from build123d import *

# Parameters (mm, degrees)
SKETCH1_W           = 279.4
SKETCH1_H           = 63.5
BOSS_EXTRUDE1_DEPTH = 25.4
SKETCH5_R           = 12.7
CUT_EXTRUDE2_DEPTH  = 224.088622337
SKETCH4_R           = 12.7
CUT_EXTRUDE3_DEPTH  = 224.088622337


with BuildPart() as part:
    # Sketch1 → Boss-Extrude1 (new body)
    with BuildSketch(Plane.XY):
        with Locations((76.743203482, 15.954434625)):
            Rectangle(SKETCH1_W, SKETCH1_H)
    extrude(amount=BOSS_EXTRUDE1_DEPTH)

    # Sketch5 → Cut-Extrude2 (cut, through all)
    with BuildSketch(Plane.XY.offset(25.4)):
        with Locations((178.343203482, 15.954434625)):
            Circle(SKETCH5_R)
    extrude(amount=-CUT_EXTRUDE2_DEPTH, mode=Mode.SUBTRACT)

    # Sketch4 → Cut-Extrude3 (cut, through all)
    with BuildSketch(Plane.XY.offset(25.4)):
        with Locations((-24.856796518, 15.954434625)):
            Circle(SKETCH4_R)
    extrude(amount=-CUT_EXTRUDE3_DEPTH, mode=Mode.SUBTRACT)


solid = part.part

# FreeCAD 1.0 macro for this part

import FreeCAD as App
import Part
import Sketcher
from FreeCAD import Vector
Q = App.Units.Quantity

doc = App.newDocument("Part")
params = doc.addObject("Spreadsheet::Sheet", "Params")
for row, (alias, value) in enumerate([
    ("sketch1_width", "11 in"),
    ("sketch1_height", "2.5 in"),
    ("pad1_length", "1 in"),
    ("sketch2_diameter", "1 in"),
    ("sketch3_diameter", "1 in"),
], start=1):
    params.set(f"A{row}", alias)
    params.set(f"B{row}", "=" + value)
    params.setAlias(f"B{row}", alias)

body = doc.addObject("PartDesign::Body", "Body")

# Sketch on XY plane
sketch1 = body.newObject("Sketcher::SketchObject", "Sketch")
sketch1.AttachmentSupport = (doc.getObject("XY_Plane"), [""])
sketch1.MapMode = "FlatFace"
sketch1.addGeometry(Part.LineSegment(Vector(-62.956797, 47.704435, 0), Vector(-62.956797, -15.795565, 0)), False)
sketch1.addGeometry(Part.LineSegment(Vector(-62.956797, -15.795565, 0), Vector(216.443203, -15.795565, 0)), False)
sketch1.addGeometry(Part.LineSegment(Vector(216.443203, -15.795565, 0), Vector(216.443203, 47.704435, 0)), False)
sketch1.addGeometry(Part.LineSegment(Vector(216.443203, 47.704435, 0), Vector(-62.956797, 47.704435, 0)), False)
sketch1.addConstraint(Sketcher.Constraint("Coincident", 0, 2, 1, 1))
sketch1.addConstraint(Sketcher.Constraint("Coincident", 1, 2, 2, 1))
sketch1.addConstraint(Sketcher.Constraint("Coincident", 2, 2, 3, 1))
sketch1.addConstraint(Sketcher.Constraint("Coincident", 3, 2, 0, 1))
sketch1.addConstraint(Sketcher.Constraint("Vertical", 0))
sketch1.addConstraint(Sketcher.Constraint("Horizontal", 1))
sketch1.addConstraint(Sketcher.Constraint("Vertical", 2))
sketch1.addConstraint(Sketcher.Constraint("Horizontal", 3))
sketch1.addConstraint(Sketcher.Constraint("DistanceX", 1, 1, 1, 2, Q("11 in")))
sketch1.addConstraint(Sketcher.Constraint("DistanceY", 0, 2, 0, 1, Q("2.5 in")))
sketch1.addConstraint(Sketcher.Constraint("DistanceX", 0, 2, -1, 1, 62.956797))
sketch1.addConstraint(Sketcher.Constraint("DistanceY", 0, 2, -1, 1, 15.795565))
sketch1.setExpression("Constraints[8]", "Params.sketch1_width")
sketch1.setExpression("Constraints[9]", "Params.sketch1_height")
pad1 = body.newObject("PartDesign::Pad", "Pad")
pad1.Profile = sketch1
pad1.setExpression("Length", "Params.pad1_length")

# Sketch on XY plane
sketch2 = body.newObject("Sketcher::SketchObject", "Sketch001")
sketch2.AttachmentSupport = (doc.getObject("XY_Plane"), [""])
sketch2.MapMode = "FlatFace"
sketch2.AttachmentOffset = App.Placement(Vector(0, 0, 1 * 25.4), App.Rotation())
sketch2.addGeometry(Part.Circle(Vector(178.343203, 15.954435, 0), Vector(0, 0, 1), 12.7), False)
sketch2.addConstraint(Sketcher.Constraint("Diameter", 0, Q("1 in")))
sketch2.addConstraint(Sketcher.Constraint("DistanceX", -1, 1, 0, 3, 178.343203))
sketch2.addConstraint(Sketcher.Constraint("DistanceY", -1, 1, 0, 3, 15.954435))
sketch2.setExpression("Constraints[0]", "Params.sketch2_diameter")
pocket1 = body.newObject("PartDesign::Pocket", "Pocket")
pocket1.Profile = sketch2
pocket1.Type = "ThroughAll"

# Sketch on XY plane
sketch3 = body.newObject("Sketcher::SketchObject", "Sketch002")
sketch3.AttachmentSupport = (doc.getObject("XY_Plane"), [""])
sketch3.MapMode = "FlatFace"
sketch3.AttachmentOffset = App.Placement(Vector(0, 0, 1 * 25.4), App.Rotation())
sketch3.addGeometry(Part.Circle(Vector(-24.856797, 15.954435, 0), Vector(0, 0, 1), 12.7), False)
sketch3.addConstraint(Sketcher.Constraint("Diameter", 0, Q("1 in")))
sketch3.addConstraint(Sketcher.Constraint("DistanceX", 0, 3, -1, 1, 24.856797))
sketch3.addConstraint(Sketcher.Constraint("DistanceY", -1, 1, 0, 3, 15.954435))
sketch3.setExpression("Constraints[0]", "Params.sketch3_diameter")
pocket2 = body.newObject("PartDesign::Pocket", "Pocket001")
pocket2.Profile = sketch3
pocket2.Type = "ThroughAll"

doc.recompute()
